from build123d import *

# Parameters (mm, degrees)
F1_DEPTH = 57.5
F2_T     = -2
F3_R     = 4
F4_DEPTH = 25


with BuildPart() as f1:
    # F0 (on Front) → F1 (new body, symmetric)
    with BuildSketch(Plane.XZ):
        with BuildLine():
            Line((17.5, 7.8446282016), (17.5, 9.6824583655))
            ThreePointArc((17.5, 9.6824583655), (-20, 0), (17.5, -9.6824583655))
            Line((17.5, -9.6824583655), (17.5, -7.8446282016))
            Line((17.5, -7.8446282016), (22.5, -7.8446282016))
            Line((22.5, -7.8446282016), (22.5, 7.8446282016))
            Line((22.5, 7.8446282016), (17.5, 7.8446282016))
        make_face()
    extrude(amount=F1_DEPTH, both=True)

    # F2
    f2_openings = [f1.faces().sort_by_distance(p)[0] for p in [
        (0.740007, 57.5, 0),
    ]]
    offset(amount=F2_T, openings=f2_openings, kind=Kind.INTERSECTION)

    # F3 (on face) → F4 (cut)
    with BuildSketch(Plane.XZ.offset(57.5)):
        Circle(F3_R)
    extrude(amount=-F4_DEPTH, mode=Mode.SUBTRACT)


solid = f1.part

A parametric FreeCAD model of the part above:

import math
import FreeCAD as App
import Part
import Sketcher
from FreeCAD import Vector
Q = App.Units.Quantity


def faces_at(feature, points):
    """Names of the faces that lie closest to the given points."""
    faces = feature.Shape.Faces
    near = lambda p: min(range(len(faces)), key=lambda i: faces[i].distToShape(Part.Vertex(*p))[0])
    return sorted({f"Face{near(p) + 1}" for p in points})

doc = App.newDocument("Part")
body = doc.addObject("PartDesign::Body", "Body")

# Sketch on XZ plane
sketch1 = body.newObject("Sketcher::SketchObject", "Sketch")
sketch1.AttachmentSupport = (doc.getObject("XZ_Plane"), [""])
sketch1.MapMode = "FlatFace"
sketch1.addGeometry([
    Part.LineSegment(Vector(17.5, 7.8, 0), Vector(17.5, 9.7, 0)),  # 0
    Part.ArcOfCircle(Part.Circle(Vector(0, 0, 0), Vector(0, 0, 1), 20), math.radians(29), math.radians(331)),  # 1
    Part.LineSegment(Vector(17.5, -9.7, 0), Vector(17.5, -7.8, 0)),  # 2
    Part.LineSegment(Vector(17.5, -7.8, 0), Vector(22.5, -7.8, 0)),  # 3
    Part.LineSegment(Vector(22.5, -7.8, 0), Vector(22.5, 7.8, 0)),  # 4
    Part.LineSegment(Vector(22.5, 7.8, 0), Vector(17.5, 7.8, 0)),  # 5
], False)
sketch1.addConstraint([
    Sketcher.Constraint("Coincident", 0, 2, 1, 1),
    Sketcher.Constraint("Coincident", 1, 2, 2, 1),
    Sketcher.Constraint("Coincident", 2, 2, 3, 1),
    Sketcher.Constraint("Coincident", 3, 2, 4, 1),
    Sketcher.Constraint("Coincident", 4, 2, 5, 1),
    Sketcher.Constraint("Coincident", 5, 2, 0, 1),
    Sketcher.Constraint("Vertical", 0),
    Sketcher.Constraint("Vertical", 2),
    Sketcher.Constraint("Horizontal", 3),
    Sketcher.Constraint("Vertical", 4),
    Sketcher.Constraint("Horizontal", 5),
    Sketcher.Constraint("Coincident", 1, 3, -1, 1),
    Sketcher.Constraint("Symmetric", 2, 2, 5, 2, -1),
    Sketcher.Constraint("Radius", 1, Q("20 mm")),
    Sketcher.Constraint("DistanceX", 3, 1, 3, 2, Q("5 mm")),
    Sketcher.Constraint("DistanceX", -1, 1, 0, 2, Q("17.5 mm")),
    Sketcher.Constraint("DistanceY", 0, 1, 0, 2, Q("1.83783 mm")),
])
pad1 = body.newObject("PartDesign::Pad", "Pad")
pad1.Profile = sketch1
pad1.Length = 115
pad1.Midplane = True
doc.recompute()

thickness = body.newObject("PartDesign::Thickness", "Thickness")
thickness.Base = (pad1, faces_at(pad1, [(1.25, 57.5, 0)]))
thickness.Value = 2
thickness.Reversed = True
thickness.Join = "Intersection"

# Sketch on XZ plane
sketch2 = body.newObject("Sketcher::SketchObject", "Sketch001")
sketch2.AttachmentSupport = (doc.getObject("XZ_Plane"), [""])
sketch2.MapMode = "FlatFace"
sketch2.AttachmentOffset = App.Placement(Vector(0, 0, 57.5), App.Rotation())
sketch2.addGeometry(Part.Circle(Vector(0, 0, 0), Vector(0, 0, 1), 4), False)
sketch2.addConstraint([
    Sketcher.Constraint("Coincident", 0, 3, -1, 1),
    Sketcher.Constraint("Diameter", 0, Q("8 mm")),
])
pocket1 = body.newObject("PartDesign::Pocket", "Pocket")
pocket1.Profile = sketch2
pocket1.Length = 25

doc.recompute()
